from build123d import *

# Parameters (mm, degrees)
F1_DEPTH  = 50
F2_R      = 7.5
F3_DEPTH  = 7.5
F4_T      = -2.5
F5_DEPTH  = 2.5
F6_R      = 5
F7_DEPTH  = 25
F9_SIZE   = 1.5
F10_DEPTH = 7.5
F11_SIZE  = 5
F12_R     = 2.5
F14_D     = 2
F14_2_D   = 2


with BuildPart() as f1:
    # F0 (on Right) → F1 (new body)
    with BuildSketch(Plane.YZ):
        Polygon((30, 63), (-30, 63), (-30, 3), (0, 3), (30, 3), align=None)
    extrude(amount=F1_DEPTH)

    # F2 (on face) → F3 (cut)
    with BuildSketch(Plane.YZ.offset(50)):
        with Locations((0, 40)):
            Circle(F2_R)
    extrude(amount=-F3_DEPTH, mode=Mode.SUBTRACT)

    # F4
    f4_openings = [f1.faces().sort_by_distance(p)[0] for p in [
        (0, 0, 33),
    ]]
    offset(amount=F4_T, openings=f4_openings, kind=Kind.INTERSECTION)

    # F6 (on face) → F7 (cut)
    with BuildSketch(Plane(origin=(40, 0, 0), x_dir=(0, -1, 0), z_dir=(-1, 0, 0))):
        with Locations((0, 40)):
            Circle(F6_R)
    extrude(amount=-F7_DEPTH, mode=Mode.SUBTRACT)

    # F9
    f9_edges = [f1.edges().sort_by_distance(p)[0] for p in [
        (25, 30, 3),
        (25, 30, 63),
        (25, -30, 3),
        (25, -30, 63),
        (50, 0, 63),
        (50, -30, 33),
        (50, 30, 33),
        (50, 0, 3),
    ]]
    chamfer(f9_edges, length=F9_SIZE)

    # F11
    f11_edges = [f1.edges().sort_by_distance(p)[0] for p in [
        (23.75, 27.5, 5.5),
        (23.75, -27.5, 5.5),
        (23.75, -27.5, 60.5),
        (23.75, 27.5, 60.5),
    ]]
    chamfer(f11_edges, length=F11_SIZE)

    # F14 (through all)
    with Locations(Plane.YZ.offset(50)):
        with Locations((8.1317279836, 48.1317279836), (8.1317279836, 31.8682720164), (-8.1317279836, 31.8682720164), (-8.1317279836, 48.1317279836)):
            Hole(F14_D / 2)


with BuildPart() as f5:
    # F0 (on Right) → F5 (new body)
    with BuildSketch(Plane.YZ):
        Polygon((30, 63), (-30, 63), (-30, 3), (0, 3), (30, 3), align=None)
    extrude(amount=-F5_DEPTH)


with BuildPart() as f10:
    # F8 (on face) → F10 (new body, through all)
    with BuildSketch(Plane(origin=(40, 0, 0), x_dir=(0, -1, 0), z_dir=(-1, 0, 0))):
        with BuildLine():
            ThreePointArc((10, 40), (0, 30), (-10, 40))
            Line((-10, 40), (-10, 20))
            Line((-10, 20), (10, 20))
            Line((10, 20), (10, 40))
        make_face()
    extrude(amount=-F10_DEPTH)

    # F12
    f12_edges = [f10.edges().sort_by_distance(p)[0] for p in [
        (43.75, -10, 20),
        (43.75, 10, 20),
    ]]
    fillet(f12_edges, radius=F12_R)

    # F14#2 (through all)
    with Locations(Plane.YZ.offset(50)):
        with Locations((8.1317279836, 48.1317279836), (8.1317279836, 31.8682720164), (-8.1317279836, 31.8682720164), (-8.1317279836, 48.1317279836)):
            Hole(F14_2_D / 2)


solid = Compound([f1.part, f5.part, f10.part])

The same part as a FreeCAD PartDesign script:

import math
import FreeCAD as App
import Part
import Sketcher
from FreeCAD import Vector
Q = App.Units.Quantity


def edges_at(feature, points):
    """Names of the edges that pass closest to the given points."""
    edges = feature.Shape.Edges
    near = lambda p: min(range(len(edges)), key=lambda i: edges[i].distToShape(Part.Vertex(*p))[0])
    return sorted({f"Edge{near(p) + 1}" for p in points})


def faces_at(feature, points):
    """Names of the faces that lie closest to the given points."""
    faces = feature.Shape.Faces
    near = lambda p: min(range(len(faces)), key=lambda i: faces[i].distToShape(Part.Vertex(*p))[0])
    return sorted({f"Face{near(p) + 1}" for p in points})


def add_polygon(sketch, points):
    """Adds a closed chain of lines whose ends are joined by coincident constraints."""
    first, n = sketch.GeometryCount, len(points)
    for a, b in zip(points, points[1:] + points[:1]):
        sketch.addGeometry(Part.LineSegment(App.Vector(*a, 0), App.Vector(*b, 0)), False)
    for i in range(n):
        sketch.addConstraint(Sketcher.Constraint("Coincident", first + i, 2, first + (i + 1) % n, 1))

doc = App.newDocument("Part")
body = doc.addObject("PartDesign::Body", "Body")

sketch1 = doc.addObject("Sketcher::SketchObject", "Sketch")
body.addObject(sketch1)
sketch1.AttachmentSupport = (doc.YZ_Plane, [""])
sketch1.MapMode = "FlatFace"
add_polygon(sketch1, [(30, 63), (-30, 63), (-30, 3), (30, 3)])
sketch1.addConstraint([
    Sketcher.Constraint("Horizontal", 0),
    Sketcher.Constraint("Vertical", 1),
    Sketcher.Constraint("Horizontal", 2),
    Sketcher.Constraint("Vertical", 3),
    Sketcher.Constraint("Equal", 2, 1),
    Sketcher.Constraint("DistanceX", 0, 2, 0, 1, Q("60 mm")),
    Sketcher.Constraint("DistanceX", 0, 2, -1, 1, Q("30 mm")),
    Sketcher.Constraint("DistanceY", -1, 1, 0, 2, Q("63 mm")),
])
pad1 = doc.addObject("PartDesign::Pad", "Pad")
body.addObject(pad1)
pad1.Profile = sketch1
pad1.Length = 50

sketch2 = doc.addObject("Sketcher::SketchObject", "Sketch001")
body.addObject(sketch2)
sketch2.AttachmentSupport = (doc.YZ_Plane, [""])
sketch2.MapMode = "FlatFace"
sketch2.AttachmentOffset = App.Placement(Vector(0, 0, 50), App.Rotation())
sketch2.addGeometry(Part.Circle(Vector(0, 40, 0), Vector(0, 0, 1), 8), False)
sketch2.addConstraint([
    Sketcher.Constraint("PointOnObject", 0, 3, -2),
    Sketcher.Constraint("Diameter", 0, Q("15 mm")),
    Sketcher.Constraint("DistanceY", -1, 1, 0, 3, Q("40 mm")),
])
pocket1 = doc.addObject("PartDesign::Pocket", "Pocket")
body.addObject(pocket1)
pocket1.Profile = sketch2
pocket1.Length = 7.5
doc.recompute()

thickness = doc.addObject("PartDesign::Thickness", "Thickness")
body.addObject(thickness)
thickness.Base = (pocket1, faces_at(pocket1, [(0, 0, 33)]))
thickness.Value = 2.5
thickness.Reversed = True
thickness.Join = "Intersection"

sketch3 = doc.addObject("Sketcher::SketchObject", "Sketch002")
body.addObject(sketch3)
sketch3.AttachmentSupport = (doc.YZ_Plane, [""])
sketch3.MapMode = "FlatFace"
sketch3.AttachmentOffset = App.Placement(Vector(0, 0, 40), App.Rotation())
sketch3.addGeometry(Part.Circle(Vector(0, 40, 0), Vector(0, 0, 1), 5), False)
sketch3.addConstraint([
    Sketcher.Constraint("PointOnObject", 0, 3, -2),
    Sketcher.Constraint("Diameter", 0, Q("10 mm")),
    Sketcher.Constraint("DistanceY", -1, 1, 0, 3, Q("40 mm")),
])
pocket2 = doc.addObject("PartDesign::Pocket", "Pocket001")
body.addObject(pocket2)
pocket2.Profile = sketch3
pocket2.Length = 25
pocket2.Reversed = True
doc.recompute()

chamfer = doc.addObject("PartDesign::Chamfer", "Chamfer")
body.addObject(chamfer)
chamfer.Base = (pocket2, edges_at(pocket2, [
    (25, 30, 3),
    (25, 30, 63),
    (25, -30, 3),
    (25, -30, 63),
    (50, 0, 63),
    (50, -30, 33),
    (50, 30, 33),
    (50, 0, 3),
]))
chamfer.Size = 1.5
doc.recompute()

chamfer2 = doc.addObject("PartDesign::Chamfer", "Chamfer001")
body.addObject(chamfer2)
chamfer2.Base = (chamfer, edges_at(chamfer, [
    (23.75, 27.5, 5.5),
    (23.75, -27.5, 5.5),
    (23.75, -27.5, 60.5),
    (23.75, 27.5, 60.5),
]))
chamfer2.Size = 5

sketch4 = doc.addObject("Sketcher::SketchObject", "Sketch003")
body.addObject(sketch4)
sketch4.AttachmentSupport = (doc.YZ_Plane, [""])
sketch4.MapMode = "FlatFace"
sketch4.AttachmentOffset = App.Placement(Vector(0, 0, 50), App.Rotation())
sketch4.addGeometry([
    Part.Circle(Vector(8.1, 48.1, 0), Vector(0, 0, 1), 1),
    Part.Circle(Vector(8.1, 31.9, 0), Vector(0, 0, 1), 1),
    Part.Circle(Vector(-8.1, 31.9, 0), Vector(0, 0, 1), 1),
    Part.Circle(Vector(-8.1, 48.1, 0), Vector(0, 0, 1), 1),
], False)
sketch4.addConstraint([
    Sketcher.Constraint("Equal", 0, 1),
    Sketcher.Constraint("Equal", 1, 2),
    Sketcher.Constraint("Equal", 2, 3),
    Sketcher.Constraint("Symmetric", 1, 3, 2, 3, -2),
    Sketcher.Constraint("Symmetric", 0, 3, 3, 3, -2),
    Sketcher.Constraint("Vertical", 0, 3, 1, 3),
    Sketcher.Constraint("Diameter", 0, Q("2 mm")),
    Sketcher.Constraint("DistanceX", -1, 1, 0, 3, Q("8.131728 mm")),
    Sketcher.Constraint("DistanceY", -1, 1, 0, 3, Q("48.131728 mm")),
    Sketcher.Constraint("DistanceY", -1, 1, 1, 3, Q("31.868272 mm")),
])
doc.recompute()
hole = doc.addObject("PartDesign::Hole", "Hole")
body.addObject(hole)
hole.Profile = sketch4
hole.ThreadType = "None"
hole.Diameter = 2
hole.DepthType = "ThroughAll"
body2 = doc.addObject("PartDesign::Body", "Body001")

sketch5 = doc.addObject("Sketcher::SketchObject", "Sketch004")
body2.addObject(sketch5)
sketch5.AttachmentSupport = (doc.getObject("YZ_Plane001"), [""])
sketch5.MapMode = "FlatFace"
add_polygon(sketch5, [(30, 63), (-30, 63), (-30, 3), (30, 3)])
sketch5.addConstraint([
    Sketcher.Constraint("Horizontal", 0),
    Sketcher.Constraint("Vertical", 1),
    Sketcher.Constraint("Horizontal", 2),
    Sketcher.Constraint("Vertical", 3),
    Sketcher.Constraint("Equal", 2, 1),
    Sketcher.Constraint("DistanceX", 0, 2, 0, 1, Q("60 mm")),
    Sketcher.Constraint("DistanceX", 0, 2, -1, 1, Q("30 mm")),
    Sketcher.Constraint("DistanceY", -1, 1, 0, 2, Q("63 mm")),
])
pad2 = doc.addObject("PartDesign::Pad", "Pad001")
body2.addObject(pad2)
pad2.Profile = sketch5
pad2.Length = 2.5
pad2.Reversed = True
body3 = doc.addObject("PartDesign::Body", "Body002")

sketch6 = doc.addObject("Sketcher::SketchObject", "Sketch005")
body3.addObject(sketch6)
sketch6.AttachmentSupport = (doc.getObject("YZ_Plane002"), [""])
sketch6.MapMode = "FlatFace"
sketch6.AttachmentOffset = App.Placement(Vector(0, 0, 40), App.Rotation())
sketch6.addGeometry([
    Part.ArcOfCircle(Part.Circle(Vector(0, 40, 0), Vector(0, 0, 1), 10), math.radians(180), math.radians(360)),
    Part.LineSegment(Vector(10, 40, 0), Vector(10, 20, 0)),
    Part.LineSegment(Vector(10, 20, 0), Vector(-10, 20, 0)),
    Part.LineSegment(Vector(-10, 20, 0), Vector(-10, 40, 0)),
], False)
sketch6.addConstraint([
    Sketcher.Constraint("Tangent", 0, 2, 1, 1),
    Sketcher.Constraint("Coincident", 1, 2, 2, 1),
    Sketcher.Constraint("Coincident", 2, 2, 3, 1),
    Sketcher.Constraint("Tangent", 3, 2, 0, 1),
    Sketcher.Constraint("Vertical", 1),
    Sketcher.Constraint("Horizontal", 2),
    Sketcher.Constraint("Vertical", 3),
    Sketcher.Constraint("PointOnObject", 0, 3, -2),
    Sketcher.Constraint("Equal", 2, 1),
    Sketcher.Constraint("Radius", 0, Q("10 mm")),
    Sketcher.Constraint("DistanceY", -1, 1, 0, 3, Q("40 mm")),
])
pad3 = doc.addObject("PartDesign::Pad", "Pad002")
body3.addObject(pad3)
pad3.Profile = sketch6
pad3.Length = 7.5
doc.recompute()

fillet = doc.addObject("PartDesign::Fillet", "Fillet")
body3.addObject(fillet)
fillet.Base = (pad3, edges_at(pad3, [(43.75, -10, 20), (43.75, 10, 20)]))
fillet.Radius = 2.5

sketch7 = doc.addObject("Sketcher::SketchObject", "Sketch006")
body3.addObject(sketch7)
sketch7.AttachmentSupport = (doc.getObject("YZ_Plane002"), [""])
sketch7.MapMode = "FlatFace"
sketch7.AttachmentOffset = App.Placement(Vector(0, 0, 50), App.Rotation())
sketch7.addGeometry([
    Part.Circle(Vector(8.1, 48.1, 0), Vector(0, 0, 1), 1),
    Part.Circle(Vector(8.1, 31.9, 0), Vector(0, 0, 1), 1),
    Part.Circle(Vector(-8.1, 31.9, 0), Vector(0, 0, 1), 1),
    Part.Circle(Vector(-8.1, 48.1, 0), Vector(0, 0, 1), 1),
], False)
sketch7.addConstraint([
    Sketcher.Constraint("Equal", 0, 1),
    Sketcher.Constraint("Equal", 1, 2),
    Sketcher.Constraint("Equal", 2, 3),
    Sketcher.Constraint("Symmetric", 1, 3, 2, 3, -2),
    Sketcher.Constraint("Symmetric", 0, 3, 3, 3, -2),
    Sketcher.Constraint("Vertical", 0, 3, 1, 3),
    Sketcher.Constraint("Diameter", 0, Q("2 mm")),
    Sketcher.Constraint("DistanceX", -1, 1, 0, 3, Q("8.131728 mm")),
    Sketcher.Constraint("DistanceY", -1, 1, 0, 3, Q("48.131728 mm")),
    Sketcher.Constraint("DistanceY", -1, 1, 1, 3, Q("31.868272 mm")),
])
doc.recompute()
hole2 = doc.addObject("PartDesign::Hole", "Hole001")
body3.addObject(hole2)
hole2.Profile = sketch7
hole2.ThreadType = "None"
hole2.Diameter = 2
hole2.DepthType = "ThroughAll"

doc.recompute()
